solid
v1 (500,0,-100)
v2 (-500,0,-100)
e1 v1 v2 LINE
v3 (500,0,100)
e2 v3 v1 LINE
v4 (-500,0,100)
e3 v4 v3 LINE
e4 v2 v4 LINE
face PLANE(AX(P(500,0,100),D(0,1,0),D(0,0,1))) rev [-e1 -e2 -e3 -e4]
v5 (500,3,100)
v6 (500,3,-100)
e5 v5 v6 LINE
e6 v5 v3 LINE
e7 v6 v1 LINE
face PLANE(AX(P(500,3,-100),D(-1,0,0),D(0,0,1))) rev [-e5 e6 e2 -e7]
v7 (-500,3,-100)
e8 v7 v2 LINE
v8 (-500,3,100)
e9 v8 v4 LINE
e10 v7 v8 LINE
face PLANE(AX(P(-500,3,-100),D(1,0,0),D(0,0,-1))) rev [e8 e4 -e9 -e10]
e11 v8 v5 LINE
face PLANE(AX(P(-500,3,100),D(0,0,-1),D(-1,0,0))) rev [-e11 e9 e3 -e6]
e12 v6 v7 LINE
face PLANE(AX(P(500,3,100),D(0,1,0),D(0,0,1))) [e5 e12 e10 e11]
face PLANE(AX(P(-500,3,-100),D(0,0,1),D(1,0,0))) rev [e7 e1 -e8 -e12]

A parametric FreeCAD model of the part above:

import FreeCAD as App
import Part
import Sketcher
from FreeCAD import Vector

doc = App.newDocument("Part")
params = doc.addObject("Spreadsheet::Sheet", "Params")
for row, (alias, value) in enumerate([
    ("sketch1_width", "1000 mm"),
    ("sketch1_height", "200 mm"),
    ("pad1_length", "3 mm"),
], start=1):
    params.set(f"A{row}", alias)
    params.set(f"B{row}", "=" + value)
    params.setAlias(f"B{row}", alias)

body = doc.addObject("PartDesign::Body", "Body")

sketch1 = body.newObject("Sketcher::SketchObject", "Sketch")
sketch1.AttachmentSupport = (doc.getObject("XZ_Plane"), [""])
sketch1.MapMode = "FlatFace"
sketch1.addGeometry(Part.LineSegment(Vector(-500, -100, 0), Vector(-500, 100, 0)), False)
sketch1.addGeometry(Part.LineSegment(Vector(-500, 100, 0), Vector(500, 100, 0)), False)
sketch1.addGeometry(Part.LineSegment(Vector(500, 100, 0), Vector(500, -100, 0)), False)
sketch1.addGeometry(Part.LineSegment(Vector(500, -100, 0), Vector(-500, -100, 0)), False)
sketch1.addConstraint(Sketcher.Constraint("Coincident", 0, 2, 1, 1))
sketch1.addConstraint(Sketcher.Constraint("Coincident", 1, 2, 2, 1))
sketch1.addConstraint(Sketcher.Constraint("Coincident", 2, 2, 3, 1))
sketch1.addConstraint(Sketcher.Constraint("Coincident", 3, 2, 0, 1))
sketch1.addConstraint(Sketcher.Constraint("Vertical", 0))
sketch1.addConstraint(Sketcher.Constraint("Horizontal", 1))
sketch1.addConstraint(Sketcher.Constraint("Vertical", 2))
sketch1.addConstraint(Sketcher.Constraint("Horizontal", 3))
sketch1.addConstraint(Sketcher.Constraint("Symmetric", 0, 2, 2, 2, -1, 1))
sketch1.addConstraint(Sketcher.Constraint("DistanceX", 1, 1, 1, 2, 1000.0))
sketch1.addConstraint(Sketcher.Constraint("DistanceY", 0, 1, 0, 2, 200.0))
sketch1.setExpression("Constraints[9]", "Params.sketch1_width")
sketch1.setExpression("Constraints[10]", "Params.sketch1_height")
pad1 = body.newObject("PartDesign::Pad", "Pad")
pad1.Profile = sketch1
pad1.setExpression("Length", "Params.pad1_length")
pad1.Reversed = True

doc.recompute()
